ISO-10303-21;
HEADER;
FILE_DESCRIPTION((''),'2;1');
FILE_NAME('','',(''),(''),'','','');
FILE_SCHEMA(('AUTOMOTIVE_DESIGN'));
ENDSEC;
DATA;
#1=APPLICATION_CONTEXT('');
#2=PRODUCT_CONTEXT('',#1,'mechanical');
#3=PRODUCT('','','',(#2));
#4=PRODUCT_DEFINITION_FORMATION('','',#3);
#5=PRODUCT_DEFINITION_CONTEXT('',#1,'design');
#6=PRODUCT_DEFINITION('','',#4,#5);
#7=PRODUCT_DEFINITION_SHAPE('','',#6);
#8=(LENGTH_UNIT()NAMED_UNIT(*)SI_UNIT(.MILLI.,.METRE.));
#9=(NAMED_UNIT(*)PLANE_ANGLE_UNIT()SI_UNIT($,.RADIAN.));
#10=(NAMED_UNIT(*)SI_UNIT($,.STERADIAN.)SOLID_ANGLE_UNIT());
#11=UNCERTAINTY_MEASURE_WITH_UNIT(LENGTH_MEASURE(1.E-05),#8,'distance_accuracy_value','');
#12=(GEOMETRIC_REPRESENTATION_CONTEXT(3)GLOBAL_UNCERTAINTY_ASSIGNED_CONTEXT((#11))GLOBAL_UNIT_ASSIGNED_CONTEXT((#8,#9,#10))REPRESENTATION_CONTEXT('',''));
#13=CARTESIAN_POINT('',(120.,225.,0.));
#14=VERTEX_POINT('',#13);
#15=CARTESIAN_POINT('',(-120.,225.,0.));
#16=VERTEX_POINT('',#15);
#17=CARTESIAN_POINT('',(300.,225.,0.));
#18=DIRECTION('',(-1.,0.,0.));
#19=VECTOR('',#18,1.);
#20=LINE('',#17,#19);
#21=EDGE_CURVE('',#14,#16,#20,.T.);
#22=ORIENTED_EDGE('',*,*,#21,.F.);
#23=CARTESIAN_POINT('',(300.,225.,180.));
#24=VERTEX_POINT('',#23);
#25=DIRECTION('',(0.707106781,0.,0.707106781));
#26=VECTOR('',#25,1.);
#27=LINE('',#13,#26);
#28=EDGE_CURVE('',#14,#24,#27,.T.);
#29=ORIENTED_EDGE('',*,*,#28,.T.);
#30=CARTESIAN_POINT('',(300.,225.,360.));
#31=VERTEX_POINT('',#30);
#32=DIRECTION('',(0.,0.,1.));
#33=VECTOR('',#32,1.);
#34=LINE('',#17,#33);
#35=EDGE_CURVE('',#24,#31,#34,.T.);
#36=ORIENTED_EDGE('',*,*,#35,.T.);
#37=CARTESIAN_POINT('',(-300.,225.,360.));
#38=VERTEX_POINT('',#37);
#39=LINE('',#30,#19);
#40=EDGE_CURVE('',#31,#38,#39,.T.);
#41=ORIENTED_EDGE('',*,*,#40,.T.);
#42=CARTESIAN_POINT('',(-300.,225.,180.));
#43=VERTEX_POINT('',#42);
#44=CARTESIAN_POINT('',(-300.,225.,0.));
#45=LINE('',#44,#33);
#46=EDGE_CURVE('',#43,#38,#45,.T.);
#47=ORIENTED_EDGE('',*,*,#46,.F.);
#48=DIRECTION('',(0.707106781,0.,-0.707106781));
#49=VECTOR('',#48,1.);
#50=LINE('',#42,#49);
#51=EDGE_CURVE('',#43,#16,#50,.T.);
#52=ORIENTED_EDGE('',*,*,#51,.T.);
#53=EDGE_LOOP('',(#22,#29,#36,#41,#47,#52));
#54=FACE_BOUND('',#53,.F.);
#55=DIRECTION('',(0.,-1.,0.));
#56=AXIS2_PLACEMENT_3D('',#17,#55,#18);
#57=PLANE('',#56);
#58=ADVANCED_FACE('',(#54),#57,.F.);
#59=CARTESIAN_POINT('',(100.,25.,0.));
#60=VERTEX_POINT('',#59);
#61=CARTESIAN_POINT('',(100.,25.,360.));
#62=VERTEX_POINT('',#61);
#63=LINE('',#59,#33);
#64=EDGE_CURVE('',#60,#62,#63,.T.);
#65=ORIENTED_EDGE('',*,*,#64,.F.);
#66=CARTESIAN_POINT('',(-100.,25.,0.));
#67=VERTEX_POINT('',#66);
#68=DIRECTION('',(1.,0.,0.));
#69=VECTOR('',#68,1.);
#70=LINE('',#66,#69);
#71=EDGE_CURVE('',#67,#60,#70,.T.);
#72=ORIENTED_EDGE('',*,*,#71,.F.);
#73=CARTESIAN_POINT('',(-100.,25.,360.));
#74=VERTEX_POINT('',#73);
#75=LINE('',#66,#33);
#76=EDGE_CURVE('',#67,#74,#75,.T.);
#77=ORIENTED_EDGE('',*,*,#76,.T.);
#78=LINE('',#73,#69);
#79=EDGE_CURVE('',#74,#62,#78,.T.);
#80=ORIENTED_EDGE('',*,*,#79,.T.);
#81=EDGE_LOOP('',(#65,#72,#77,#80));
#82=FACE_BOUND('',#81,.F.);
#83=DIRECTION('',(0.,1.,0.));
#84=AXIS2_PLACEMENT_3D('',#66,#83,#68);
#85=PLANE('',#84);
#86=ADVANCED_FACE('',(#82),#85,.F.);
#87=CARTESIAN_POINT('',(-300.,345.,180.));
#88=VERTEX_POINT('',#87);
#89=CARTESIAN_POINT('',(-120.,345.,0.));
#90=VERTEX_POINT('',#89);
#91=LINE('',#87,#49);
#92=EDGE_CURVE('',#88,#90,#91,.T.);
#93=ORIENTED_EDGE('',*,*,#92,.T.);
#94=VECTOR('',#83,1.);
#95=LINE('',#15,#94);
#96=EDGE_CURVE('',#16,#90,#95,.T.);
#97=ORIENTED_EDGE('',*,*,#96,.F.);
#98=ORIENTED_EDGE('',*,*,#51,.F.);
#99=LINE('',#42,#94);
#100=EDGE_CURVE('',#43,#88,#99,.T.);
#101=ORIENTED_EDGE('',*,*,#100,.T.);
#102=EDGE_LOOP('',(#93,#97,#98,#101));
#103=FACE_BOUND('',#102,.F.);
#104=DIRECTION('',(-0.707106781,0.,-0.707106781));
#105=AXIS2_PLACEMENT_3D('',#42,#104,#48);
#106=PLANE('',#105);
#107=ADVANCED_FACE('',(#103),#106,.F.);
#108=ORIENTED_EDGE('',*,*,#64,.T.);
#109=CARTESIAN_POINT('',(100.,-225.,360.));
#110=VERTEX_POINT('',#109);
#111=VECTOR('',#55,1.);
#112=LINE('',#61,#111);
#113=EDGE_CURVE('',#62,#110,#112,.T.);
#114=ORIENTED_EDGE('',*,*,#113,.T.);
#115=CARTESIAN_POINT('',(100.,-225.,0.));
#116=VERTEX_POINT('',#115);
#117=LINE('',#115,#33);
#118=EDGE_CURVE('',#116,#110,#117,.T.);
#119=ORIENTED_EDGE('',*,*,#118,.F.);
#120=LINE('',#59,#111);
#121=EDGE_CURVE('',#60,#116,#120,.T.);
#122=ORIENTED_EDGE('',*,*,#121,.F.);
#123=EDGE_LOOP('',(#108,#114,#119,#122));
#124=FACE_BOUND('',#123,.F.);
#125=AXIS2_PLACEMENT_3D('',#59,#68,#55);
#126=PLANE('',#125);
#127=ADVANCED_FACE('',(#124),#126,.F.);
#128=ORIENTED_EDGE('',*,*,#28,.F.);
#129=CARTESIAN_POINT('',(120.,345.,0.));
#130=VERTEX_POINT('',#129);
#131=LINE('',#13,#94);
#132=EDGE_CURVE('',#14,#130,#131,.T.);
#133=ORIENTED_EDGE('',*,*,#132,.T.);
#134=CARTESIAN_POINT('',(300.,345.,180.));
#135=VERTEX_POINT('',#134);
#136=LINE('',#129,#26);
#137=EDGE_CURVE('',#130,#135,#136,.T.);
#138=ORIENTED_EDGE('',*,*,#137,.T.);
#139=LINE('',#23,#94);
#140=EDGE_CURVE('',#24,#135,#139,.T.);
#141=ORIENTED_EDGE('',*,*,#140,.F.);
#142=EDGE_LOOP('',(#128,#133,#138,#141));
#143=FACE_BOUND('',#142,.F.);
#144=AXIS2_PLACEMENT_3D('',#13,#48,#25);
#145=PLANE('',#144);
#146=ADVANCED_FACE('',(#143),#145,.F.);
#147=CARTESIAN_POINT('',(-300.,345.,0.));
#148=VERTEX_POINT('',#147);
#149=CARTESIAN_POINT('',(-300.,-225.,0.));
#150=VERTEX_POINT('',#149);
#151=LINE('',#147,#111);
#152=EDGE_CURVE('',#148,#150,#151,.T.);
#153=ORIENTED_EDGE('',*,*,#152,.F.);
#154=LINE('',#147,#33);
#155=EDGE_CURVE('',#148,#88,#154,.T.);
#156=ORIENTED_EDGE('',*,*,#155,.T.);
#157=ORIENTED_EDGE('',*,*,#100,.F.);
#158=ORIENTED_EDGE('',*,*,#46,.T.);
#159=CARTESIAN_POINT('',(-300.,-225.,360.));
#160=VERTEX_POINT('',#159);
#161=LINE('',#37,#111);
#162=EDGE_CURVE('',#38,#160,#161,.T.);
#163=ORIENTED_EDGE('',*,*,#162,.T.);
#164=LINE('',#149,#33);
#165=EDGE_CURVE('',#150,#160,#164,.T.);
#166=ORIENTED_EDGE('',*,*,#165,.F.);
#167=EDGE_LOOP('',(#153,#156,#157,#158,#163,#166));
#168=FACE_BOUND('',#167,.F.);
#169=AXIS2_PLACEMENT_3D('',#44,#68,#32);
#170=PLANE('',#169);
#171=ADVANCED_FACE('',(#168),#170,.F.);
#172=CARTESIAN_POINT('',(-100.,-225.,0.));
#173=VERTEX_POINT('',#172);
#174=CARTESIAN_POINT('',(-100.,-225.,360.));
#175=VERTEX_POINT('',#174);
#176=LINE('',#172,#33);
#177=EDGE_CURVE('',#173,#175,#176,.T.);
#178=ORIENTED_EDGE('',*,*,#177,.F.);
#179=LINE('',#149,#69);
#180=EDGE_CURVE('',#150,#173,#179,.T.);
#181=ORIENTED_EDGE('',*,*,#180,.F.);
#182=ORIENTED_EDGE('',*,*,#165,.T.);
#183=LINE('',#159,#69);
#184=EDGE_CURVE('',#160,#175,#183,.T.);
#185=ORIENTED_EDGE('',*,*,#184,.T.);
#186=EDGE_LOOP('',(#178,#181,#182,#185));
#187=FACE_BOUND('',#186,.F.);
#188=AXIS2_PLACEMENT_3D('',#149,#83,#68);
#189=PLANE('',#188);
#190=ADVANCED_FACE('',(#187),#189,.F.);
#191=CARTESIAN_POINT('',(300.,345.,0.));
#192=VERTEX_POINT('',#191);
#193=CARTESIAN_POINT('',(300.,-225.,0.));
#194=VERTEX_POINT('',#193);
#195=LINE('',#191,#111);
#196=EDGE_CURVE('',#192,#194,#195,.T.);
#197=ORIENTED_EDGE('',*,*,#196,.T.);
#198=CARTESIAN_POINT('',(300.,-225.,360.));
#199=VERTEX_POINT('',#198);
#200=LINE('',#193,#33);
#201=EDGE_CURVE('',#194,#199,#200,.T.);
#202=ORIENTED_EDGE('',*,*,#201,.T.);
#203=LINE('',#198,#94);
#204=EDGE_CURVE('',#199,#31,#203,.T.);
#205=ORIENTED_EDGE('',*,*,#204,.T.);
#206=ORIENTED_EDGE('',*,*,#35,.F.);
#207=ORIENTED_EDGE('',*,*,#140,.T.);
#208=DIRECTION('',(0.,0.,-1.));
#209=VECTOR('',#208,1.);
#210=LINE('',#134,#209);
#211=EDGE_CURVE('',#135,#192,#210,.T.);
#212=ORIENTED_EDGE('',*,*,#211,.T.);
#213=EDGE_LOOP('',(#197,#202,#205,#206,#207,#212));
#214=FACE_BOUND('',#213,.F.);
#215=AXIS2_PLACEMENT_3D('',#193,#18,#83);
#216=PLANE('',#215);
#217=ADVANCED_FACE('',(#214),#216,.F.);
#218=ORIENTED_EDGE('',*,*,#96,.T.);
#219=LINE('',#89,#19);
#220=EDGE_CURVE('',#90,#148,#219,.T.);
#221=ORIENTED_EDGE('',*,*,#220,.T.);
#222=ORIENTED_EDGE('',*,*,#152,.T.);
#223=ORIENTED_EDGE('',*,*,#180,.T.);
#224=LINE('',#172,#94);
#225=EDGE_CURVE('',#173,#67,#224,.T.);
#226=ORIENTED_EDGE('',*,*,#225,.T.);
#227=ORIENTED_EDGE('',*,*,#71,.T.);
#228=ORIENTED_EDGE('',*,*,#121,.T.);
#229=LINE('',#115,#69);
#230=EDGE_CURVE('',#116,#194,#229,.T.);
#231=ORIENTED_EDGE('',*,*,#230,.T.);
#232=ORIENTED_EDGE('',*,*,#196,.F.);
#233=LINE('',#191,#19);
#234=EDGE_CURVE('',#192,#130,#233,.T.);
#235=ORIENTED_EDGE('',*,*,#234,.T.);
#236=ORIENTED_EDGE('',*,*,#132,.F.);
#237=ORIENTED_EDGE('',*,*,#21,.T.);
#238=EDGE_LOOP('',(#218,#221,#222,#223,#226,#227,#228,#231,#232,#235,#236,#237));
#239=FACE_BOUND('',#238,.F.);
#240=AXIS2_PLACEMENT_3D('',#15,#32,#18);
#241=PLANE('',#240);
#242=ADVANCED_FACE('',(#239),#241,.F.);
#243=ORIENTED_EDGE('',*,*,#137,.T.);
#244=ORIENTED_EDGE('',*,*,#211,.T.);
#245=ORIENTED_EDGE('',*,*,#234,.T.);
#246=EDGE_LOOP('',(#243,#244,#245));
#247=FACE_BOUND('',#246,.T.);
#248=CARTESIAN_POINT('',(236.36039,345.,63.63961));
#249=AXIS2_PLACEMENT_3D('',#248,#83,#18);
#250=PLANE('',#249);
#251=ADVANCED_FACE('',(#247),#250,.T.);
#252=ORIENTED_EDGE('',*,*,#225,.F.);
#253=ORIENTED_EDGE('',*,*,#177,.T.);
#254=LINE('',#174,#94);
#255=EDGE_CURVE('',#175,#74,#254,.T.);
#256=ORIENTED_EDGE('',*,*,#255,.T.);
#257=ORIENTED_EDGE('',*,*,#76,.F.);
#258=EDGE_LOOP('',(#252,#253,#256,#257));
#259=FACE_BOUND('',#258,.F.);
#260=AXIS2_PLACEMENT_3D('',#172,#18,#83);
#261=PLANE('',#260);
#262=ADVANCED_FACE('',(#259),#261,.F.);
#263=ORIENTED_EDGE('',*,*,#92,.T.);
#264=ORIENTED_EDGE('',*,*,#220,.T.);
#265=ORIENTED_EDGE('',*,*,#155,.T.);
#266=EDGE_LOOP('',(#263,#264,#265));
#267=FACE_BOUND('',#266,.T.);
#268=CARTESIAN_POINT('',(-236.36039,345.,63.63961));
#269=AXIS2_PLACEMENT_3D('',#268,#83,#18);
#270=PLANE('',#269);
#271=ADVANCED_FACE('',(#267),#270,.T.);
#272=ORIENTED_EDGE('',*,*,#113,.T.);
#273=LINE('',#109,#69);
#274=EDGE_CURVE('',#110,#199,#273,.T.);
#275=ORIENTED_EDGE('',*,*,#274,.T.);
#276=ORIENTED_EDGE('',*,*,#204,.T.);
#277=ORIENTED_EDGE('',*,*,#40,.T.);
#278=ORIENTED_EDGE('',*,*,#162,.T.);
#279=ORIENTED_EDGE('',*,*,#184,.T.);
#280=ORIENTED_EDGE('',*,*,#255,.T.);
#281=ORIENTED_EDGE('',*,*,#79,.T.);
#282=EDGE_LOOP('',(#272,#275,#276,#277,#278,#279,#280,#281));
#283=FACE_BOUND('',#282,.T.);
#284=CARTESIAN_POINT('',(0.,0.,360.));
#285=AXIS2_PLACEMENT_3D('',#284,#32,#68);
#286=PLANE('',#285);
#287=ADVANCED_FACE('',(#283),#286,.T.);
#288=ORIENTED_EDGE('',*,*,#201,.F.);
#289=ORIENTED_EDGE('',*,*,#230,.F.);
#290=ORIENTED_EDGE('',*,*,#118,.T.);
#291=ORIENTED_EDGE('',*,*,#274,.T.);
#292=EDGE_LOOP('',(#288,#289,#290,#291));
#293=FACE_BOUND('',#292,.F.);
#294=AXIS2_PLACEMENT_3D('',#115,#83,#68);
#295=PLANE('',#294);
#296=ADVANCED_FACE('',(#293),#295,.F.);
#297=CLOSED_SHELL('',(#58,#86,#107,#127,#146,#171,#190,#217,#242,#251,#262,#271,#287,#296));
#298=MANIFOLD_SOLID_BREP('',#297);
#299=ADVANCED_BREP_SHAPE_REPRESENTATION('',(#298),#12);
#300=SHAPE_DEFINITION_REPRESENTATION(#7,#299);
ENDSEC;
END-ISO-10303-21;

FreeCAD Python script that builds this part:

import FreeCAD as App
import Part
import Sketcher
Q = App.Units.Quantity

doc = App.newDocument("Part")
body = doc.addObject("PartDesign::Body", "Body")

# Sketch on XY plane
sketch1 = body.newObject("Sketcher::SketchObject", "Sketch")
sketch1.AttachmentSupport = (doc.getObject("XY_Plane"), [""])
sketch1.MapMode = "FlatFace"
sketch1.addGeometry([
    Part.LineSegment(App.Vector(100, -225, 0), App.Vector(300, -225, 0)),  # 0
    Part.LineSegment(App.Vector(300, -225, 0), App.Vector(300, 225, 0)),  # 1
    Part.LineSegment(App.Vector(300, 225, 0), App.Vector(-300, 225, 0)),  # 2
    Part.LineSegment(App.Vector(-300, 225, 0), App.Vector(-300, -225, 0)),  # 3
    Part.LineSegment(App.Vector(-300, -225, 0), App.Vector(-100, -225, 0)),  # 4
    Part.LineSegment(App.Vector(-100, -225, 0), App.Vector(-100, 25, 0)),  # 5
    Part.LineSegment(App.Vector(-100, 25, 0), App.Vector(100, 25, 0)),  # 6
    Part.LineSegment(App.Vector(100, 25, 0), App.Vector(100, -225, 0)),  # 7
], False)
sketch1.addConstraint([
    Sketcher.Constraint("Coincident", 0, 2, 1, 1),
    Sketcher.Constraint("Coincident", 1, 2, 2, 1),
    Sketcher.Constraint("Coincident", 2, 2, 3, 1),
    Sketcher.Constraint("Coincident", 3, 2, 4, 1),
    Sketcher.Constraint("Coincident", 4, 2, 5, 1),
    Sketcher.Constraint("Coincident", 5, 2, 6, 1),
    Sketcher.Constraint("Coincident", 6, 2, 7, 1),
    Sketcher.Constraint("Coincident", 7, 2, 0, 1),
    Sketcher.Constraint("Horizontal", 0),
    Sketcher.Constraint("Vertical", 1),
    Sketcher.Constraint("Horizontal", 2),
    Sketcher.Constraint("Vertical", 3),
    Sketcher.Constraint("Horizontal", 4),
    Sketcher.Constraint("Vertical", 5),
    Sketcher.Constraint("Horizontal", 6),
    Sketcher.Constraint("Vertical", 7),
    Sketcher.Constraint("Symmetric", 0, 2, 2, 2, -1, 1),
    Sketcher.Constraint("Symmetric", 4, 2, 7, 2, -2),
    Sketcher.Constraint("Equal", 4, 6),
    Sketcher.Constraint("DistanceX", 0, 1, 0, 2, Q("200 mm")),
    Sketcher.Constraint("DistanceY", 1, 1, 1, 2, Q("450 mm")),
    Sketcher.Constraint("DistanceY", 5, 1, 5, 2, Q("250 mm")),
])
pad1 = body.newObject("PartDesign::Pad", "Pad")
pad1.Profile = sketch1
pad1.Length = 360

# Sketch on XZ plane
sketch2 = body.newObject("Sketcher::SketchObject", "Sketch001")
sketch2.AttachmentSupport = (doc.getObject("XZ_Plane"), [""])
sketch2.MapMode = "FlatFace"
sketch2.AttachmentOffset = App.Placement(App.Vector(0, 0, -225), App.Rotation())
sketch2.addGeometry([
    Part.LineSegment(App.Vector(-300, 180, 0), App.Vector(-120, 0, 0)),  # 0
    Part.LineSegment(App.Vector(-120, 0, 0), App.Vector(-300, 0, 0)),  # 1
    Part.LineSegment(App.Vector(-300, 0, 0), App.Vector(-300, 180, 0)),  # 2
    Part.LineSegment(App.Vector(300, 0, 0), App.Vector(120, 0, 0)),  # 3
    Part.LineSegment(App.Vector(120, 0, 0), App.Vector(300, 180, 0)),  # 4
    Part.LineSegment(App.Vector(300, 180, 0), App.Vector(300, 0, 0)),  # 5
], False)
sketch2.addConstraint([
    Sketcher.Constraint("Coincident", 0, 2, 1, 1),
    Sketcher.Constraint("Coincident", 1, 2, 2, 1),
    Sketcher.Constraint("Coincident", 2, 2, 0, 1),
    Sketcher.Constraint("Coincident", 3, 2, 4, 1),
    Sketcher.Constraint("Coincident", 4, 2, 5, 1),
    Sketcher.Constraint("Coincident", 5, 2, 3, 1),
    Sketcher.Constraint("Horizontal", 1),
    Sketcher.Constraint("Vertical", 2),
    Sketcher.Constraint("Horizontal", 3),
    Sketcher.Constraint("Vertical", 5),
    Sketcher.Constraint("Symmetric", 0, 2, 3, 2, -1, 1),
    Sketcher.Constraint("Symmetric", 2, 2, 4, 2, -2),
    Sketcher.Constraint("PointOnObject", 0, 2, -1),
    Sketcher.Constraint("Perpendicular", 0, 4),
    Sketcher.Constraint("DistanceX", 1, 2, 1, 1, Q("180 mm")),
    Sketcher.Constraint("DistanceX", 0, 2, -1, 1, Q("120 mm")),
])
pad2 = body.newObject("PartDesign::Pad", "Pad001")
pad2.Profile = sketch2
pad2.Length = 120
pad2.Reversed = True

doc.recompute()
